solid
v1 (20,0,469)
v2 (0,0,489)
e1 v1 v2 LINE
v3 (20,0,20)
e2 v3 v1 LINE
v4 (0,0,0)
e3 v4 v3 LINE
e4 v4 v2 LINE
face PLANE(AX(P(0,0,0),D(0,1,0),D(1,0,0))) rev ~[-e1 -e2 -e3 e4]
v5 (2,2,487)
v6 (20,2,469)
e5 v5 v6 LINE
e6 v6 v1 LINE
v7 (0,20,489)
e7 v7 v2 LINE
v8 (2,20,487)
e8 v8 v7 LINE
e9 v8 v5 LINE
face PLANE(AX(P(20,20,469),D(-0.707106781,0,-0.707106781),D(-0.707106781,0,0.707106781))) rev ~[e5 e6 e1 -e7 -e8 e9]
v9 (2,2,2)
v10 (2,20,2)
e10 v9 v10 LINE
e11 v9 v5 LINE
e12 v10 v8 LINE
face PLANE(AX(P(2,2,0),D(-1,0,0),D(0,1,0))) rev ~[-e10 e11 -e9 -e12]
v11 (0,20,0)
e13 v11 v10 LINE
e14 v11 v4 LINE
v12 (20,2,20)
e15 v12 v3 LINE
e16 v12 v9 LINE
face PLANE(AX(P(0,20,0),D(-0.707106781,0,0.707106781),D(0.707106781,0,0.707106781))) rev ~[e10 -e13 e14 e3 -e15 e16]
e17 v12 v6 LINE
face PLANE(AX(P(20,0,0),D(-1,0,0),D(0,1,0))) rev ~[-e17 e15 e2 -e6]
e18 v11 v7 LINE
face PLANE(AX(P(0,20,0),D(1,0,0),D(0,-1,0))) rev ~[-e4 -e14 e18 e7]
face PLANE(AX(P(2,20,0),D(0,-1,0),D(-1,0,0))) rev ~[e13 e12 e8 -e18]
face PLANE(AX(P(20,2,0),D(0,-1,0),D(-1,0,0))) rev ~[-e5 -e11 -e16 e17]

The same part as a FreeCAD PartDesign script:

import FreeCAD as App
import Part
import Sketcher
Q = App.Units.Quantity

doc = App.newDocument("Part")
body = doc.addObject("PartDesign::Body", "Body")

sketch1 = doc.addObject("Sketcher::SketchObject", "Sketch")
body.addObject(sketch1)
sketch1.AttachmentSupport = (doc.XY_Plane, [""])
sketch1.MapMode = "FlatFace"
sketch1.addGeometry([
    Part.LineSegment(App.Vector(0, 20, 0), App.Vector(0, 0, 0)),
    Part.LineSegment(App.Vector(0, 0, 0), App.Vector(20, 0, 0)),
    Part.LineSegment(App.Vector(20, 0, 0), App.Vector(20, 2, 0)),
    Part.LineSegment(App.Vector(20, 2, 0), App.Vector(2, 2, 0)),
    Part.LineSegment(App.Vector(2, 2, 0), App.Vector(2, 20, 0)),
    Part.LineSegment(App.Vector(2, 20, 0), App.Vector(0, 20, 0)),
], False)
sketch1.addConstraint([
    Sketcher.Constraint("Coincident", 0, 2, 1, 1),
    Sketcher.Constraint("Coincident", 1, 2, 2, 1),
    Sketcher.Constraint("Coincident", 2, 2, 3, 1),
    Sketcher.Constraint("Coincident", 3, 2, 4, 1),
    Sketcher.Constraint("Coincident", 4, 2, 5, 1),
    Sketcher.Constraint("Coincident", 5, 2, 0, 1),
    Sketcher.Constraint("Vertical", 0),
    Sketcher.Constraint("Horizontal", 1),
    Sketcher.Constraint("Vertical", 2),
    Sketcher.Constraint("Horizontal", 3),
    Sketcher.Constraint("Vertical", 4),
    Sketcher.Constraint("Horizontal", 5),
    Sketcher.Constraint("Coincident", 0, 2, -1, 1),
    Sketcher.Constraint("Equal", 1, 0),
    Sketcher.Constraint("Equal", 5, 2),
    Sketcher.Constraint("DistanceX", 1, 1, 1, 2, Q("20 mm")),
    Sketcher.Constraint("DistanceX", 3, 2, 3, 1, Q("18 mm")),
])
pad1 = doc.addObject("PartDesign::Pad", "Pad")
body.addObject(pad1)
pad1.Profile = sketch1
pad1.Length = 489

sketch2 = doc.addObject("Sketcher::SketchObject", "Sketch001")
body.addObject(sketch2)
sketch2.AttachmentSupport = (doc.XZ_Plane, [""])
sketch2.MapMode = "FlatFace"
sketch2.AttachmentOffset = App.Placement(App.Vector(0, 0, -20), App.Rotation())
sketch2.addGeometry([
    Part.LineSegment(App.Vector(0, 0, 0), App.Vector(20, 20, 0)),
    Part.LineSegment(App.Vector(20, 20, 0), App.Vector(20, 0, 0)),
    Part.LineSegment(App.Vector(20, 0, 0), App.Vector(0, 0, 0)),
    Part.LineSegment(App.Vector(0, 489, 0), App.Vector(20, 489, 0)),
    Part.LineSegment(App.Vector(20, 489, 0), App.Vector(20, 469, 0)),
    Part.LineSegment(App.Vector(20, 469, 0), App.Vector(0, 489, 0)),
], False)
sketch2.addConstraint([
    Sketcher.Constraint("Coincident", 0, 2, 1, 1),
    Sketcher.Constraint("Coincident", 1, 2, 2, 1),
    Sketcher.Constraint("Coincident", 2, 2, 0, 1),
    Sketcher.Constraint("Coincident", 3, 2, 4, 1),
    Sketcher.Constraint("Coincident", 4, 2, 5, 1),
    Sketcher.Constraint("Coincident", 5, 2, 3, 1),
    Sketcher.Constraint("Vertical", 1),
    Sketcher.Constraint("Horizontal", 2),
    Sketcher.Constraint("Horizontal", 3),
    Sketcher.Constraint("Vertical", 4),
    Sketcher.Constraint("Coincident", 2, 2, -1, 1),
    Sketcher.Constraint("PointOnObject", 5, 2, -2),
    Sketcher.Constraint("Perpendicular", 0, 5),
    Sketcher.Constraint("Vertical", 1, 2, 3, 2),
    Sketcher.Constraint("Equal", 3, 1),
    Sketcher.Constraint("DistanceX", 2, 2, 2, 1, Q("20 mm")),
    Sketcher.Constraint("DistanceY", -1, 1, 3, 2, Q("489 mm")),
])
pocket1 = doc.addObject("PartDesign::Pocket", "Pocket")
body.addObject(pocket1)
pocket1.Profile = sketch2
pocket1.Length = 485
pocket1.Reversed = True

doc.recompute()
